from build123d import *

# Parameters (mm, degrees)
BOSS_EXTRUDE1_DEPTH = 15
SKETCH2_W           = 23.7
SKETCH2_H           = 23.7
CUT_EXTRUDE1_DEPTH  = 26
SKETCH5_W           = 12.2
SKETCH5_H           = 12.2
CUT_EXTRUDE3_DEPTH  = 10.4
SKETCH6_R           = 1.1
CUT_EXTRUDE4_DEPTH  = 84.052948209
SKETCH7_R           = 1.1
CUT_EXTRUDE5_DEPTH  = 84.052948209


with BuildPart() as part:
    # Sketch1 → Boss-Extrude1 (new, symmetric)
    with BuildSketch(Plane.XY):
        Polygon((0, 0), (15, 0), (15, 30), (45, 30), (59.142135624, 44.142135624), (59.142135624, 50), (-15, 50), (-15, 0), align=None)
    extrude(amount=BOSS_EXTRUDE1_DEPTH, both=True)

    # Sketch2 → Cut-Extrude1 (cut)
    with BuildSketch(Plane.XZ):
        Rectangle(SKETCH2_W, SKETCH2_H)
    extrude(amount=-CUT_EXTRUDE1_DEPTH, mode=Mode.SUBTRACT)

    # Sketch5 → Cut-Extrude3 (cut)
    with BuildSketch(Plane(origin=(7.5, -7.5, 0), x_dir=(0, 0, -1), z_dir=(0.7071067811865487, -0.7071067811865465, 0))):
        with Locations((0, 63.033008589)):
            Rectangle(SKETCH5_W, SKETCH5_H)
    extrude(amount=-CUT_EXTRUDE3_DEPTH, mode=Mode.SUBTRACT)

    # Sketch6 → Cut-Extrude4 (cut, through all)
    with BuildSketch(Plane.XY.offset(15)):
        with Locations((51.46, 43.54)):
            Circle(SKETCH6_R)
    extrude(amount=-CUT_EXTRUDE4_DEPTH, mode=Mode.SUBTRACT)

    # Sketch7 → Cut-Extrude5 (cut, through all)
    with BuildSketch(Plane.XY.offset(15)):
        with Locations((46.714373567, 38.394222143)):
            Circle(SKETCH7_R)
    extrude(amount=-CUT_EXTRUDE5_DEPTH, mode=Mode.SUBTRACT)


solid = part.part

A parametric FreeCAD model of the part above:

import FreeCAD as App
import Part
import Sketcher
from FreeCAD import Vector
Q = App.Units.Quantity


def add_polygon(sketch, points):
    """Adds a closed chain of lines whose ends are joined by coincident constraints."""
    first, n = sketch.GeometryCount, len(points)
    for a, b in zip(points, points[1:] + points[:1]):
        sketch.addGeometry(Part.LineSegment(App.Vector(*a, 0), App.Vector(*b, 0)), False)
    for i in range(n):
        sketch.addConstraint(Sketcher.Constraint("Coincident", first + i, 2, first + (i + 1) % n, 1))

doc = App.newDocument("Part")
params = doc.addObject("Spreadsheet::Sheet", "Params")
for row, (alias, value) in enumerate([
    ("sketch1_width", "30 mm"),
    ("sketch1_height", "50 mm"),
    ("sketch1_length", "20 mm"),
    ("pad1_length", "30 mm"),
    ("sketch2_width", "23.7 mm"),
    ("pocket1_length", "26 mm"),
    ("sketch3_width", "12.2 mm"),
    ("pocket2_length", "10.4 mm"),
    ("sketch4_diameter", "2.2 mm"),
    ("sketch5_diameter", "2.2 mm"),
], start=1):
    params.set(f"A{row}", alias)
    params.set(f"B{row}", "=" + value)
    params.setAlias(f"B{row}", alias)

body = doc.addObject("PartDesign::Body", "Body")

sketch1 = body.newObject("Sketcher::SketchObject", "Sketch")
sketch1.AttachmentSupport = (doc.getObject("XY_Plane"), [""])
sketch1.MapMode = "FlatFace"
add_polygon(sketch1, [(15, 0), (15, 30), (45, 30), (59.142136, 44.142136), (59.142136, 50), (-15, 50), (-15, 0)])
sketch1.addConstraint(Sketcher.Constraint("Vertical", 0))
sketch1.addConstraint(Sketcher.Constraint("Horizontal", 1))
sketch1.addConstraint(Sketcher.Constraint("Vertical", 3))
sketch1.addConstraint(Sketcher.Constraint("Horizontal", 4))
sketch1.addConstraint(Sketcher.Constraint("Vertical", 5))
sketch1.addConstraint(Sketcher.Constraint("Horizontal", 6))
sketch1.addConstraint(Sketcher.Constraint("Symmetric", 5, 2, 6, 2, -1, 1))
sketch1.addConstraint(Sketcher.Constraint("Equal", 1, 6))
sketch1.addConstraint(Sketcher.Constraint("Equal", 6, 0))
sketch1.addConstraint(Sketcher.Constraint("DistanceX", 1, 1, 1, 2, Q("30 mm")))
sketch1.addConstraint(Sketcher.Constraint("DistanceY", 5, 2, 5, 1, Q("50 mm")))
sketch1.addConstraint(Sketcher.Constraint("Angle", 2, Q("45 deg")))
sketch1.addConstraint(Sketcher.Constraint("Distance", 2, Q("20 mm")))
sketch1.setExpression("Constraints[16]", "Params.sketch1_width")
sketch1.setExpression("Constraints[17]", "Params.sketch1_height")
sketch1.setExpression("Constraints[19]", "Params.sketch1_length")
pad1 = body.newObject("PartDesign::Pad", "Pad")
pad1.Profile = sketch1
pad1.setExpression("Length", "Params.pad1_length")
pad1.Midplane = True

sketch2 = body.newObject("Sketcher::SketchObject", "Sketch001")
sketch2.AttachmentSupport = (doc.getObject("XZ_Plane"), [""])
sketch2.MapMode = "FlatFace"
add_polygon(sketch2, [(-11.85, 11.85), (-11.85, -11.85), (11.85, -11.85), (11.85, 11.85)])
sketch2.addConstraint(Sketcher.Constraint("Vertical", 0))
sketch2.addConstraint(Sketcher.Constraint("Horizontal", 1))
sketch2.addConstraint(Sketcher.Constraint("Vertical", 2))
sketch2.addConstraint(Sketcher.Constraint("Horizontal", 3))
sketch2.addConstraint(Sketcher.Constraint("Symmetric", 0, 2, 2, 2, -1, 1))
sketch2.addConstraint(Sketcher.Constraint("Equal", 3, 0))
sketch2.addConstraint(Sketcher.Constraint("DistanceX", 1, 1, 1, 2, Q("23.7 mm")))
sketch2.setExpression("Constraints[10]", "Params.sketch2_width")
pocket1 = body.newObject("PartDesign::Pocket", "Pocket")
pocket1.Profile = sketch2
pocket1.setExpression("Length", "Params.pocket1_length")

sketch3 = body.newObject("Sketcher::SketchObject", "Sketch002")
sketch3.Placement = App.Placement(Vector(7.5, -7.5, 0), App.Rotation(Vector(0, 0, -1), Vector(0.707106781, 0.707106781, 0), Vector(0.707106781, -0.707106781, 0), "ZXY"))
add_polygon(sketch3, [(-6.1, 69.133009), (-6.1, 56.933009), (6.1, 56.933009), (6.1, 69.133009)])
sketch3.addConstraint(Sketcher.Constraint("Vertical", 0))
sketch3.addConstraint(Sketcher.Constraint("Horizontal", 1))
sketch3.addConstraint(Sketcher.Constraint("Vertical", 2))
sketch3.addConstraint(Sketcher.Constraint("Horizontal", 3))
sketch3.addConstraint(Sketcher.Constraint("Equal", 3, 0))
sketch3.addConstraint(Sketcher.Constraint("DistanceX", 1, 1, 1, 2, Q("12.2 mm")))
sketch3.addConstraint(Sketcher.Constraint("DistanceX", 0, 2, -1, 1, Q("6.1 mm")))
sketch3.addConstraint(Sketcher.Constraint("DistanceY", -1, 1, 0, 2, Q("56.933009 mm")))
sketch3.setExpression("Constraints[9]", "Params.sketch3_width")
pocket2 = body.newObject("PartDesign::Pocket", "Pocket001")
pocket2.Profile = sketch3
pocket2.setExpression("Length", "Params.pocket2_length")

sketch4 = body.newObject("Sketcher::SketchObject", "Sketch003")
sketch4.AttachmentSupport = (doc.getObject("XY_Plane"), [""])
sketch4.MapMode = "FlatFace"
sketch4.AttachmentOffset = App.Placement(Vector(0, 0, 15), App.Rotation())
sketch4.addGeometry(Part.Circle(Vector(51.46, 43.54, 0), Vector(0, 0, 1), 1.1), False)
sketch4.addConstraint(Sketcher.Constraint("Diameter", 0, Q("2.2 mm")))
sketch4.addConstraint(Sketcher.Constraint("DistanceX", -1, 1, 0, 3, Q("51.46 mm")))
sketch4.addConstraint(Sketcher.Constraint("DistanceY", -1, 1, 0, 3, Q("43.54 mm")))
sketch4.setExpression("Constraints[0]", "Params.sketch4_diameter")
pocket3 = body.newObject("PartDesign::Pocket", "Pocket002")
pocket3.Profile = sketch4
pocket3.Type = "ThroughAll"

sketch5 = body.newObject("Sketcher::SketchObject", "Sketch004")
sketch5.AttachmentSupport = (doc.getObject("XY_Plane"), [""])
sketch5.MapMode = "FlatFace"
sketch5.AttachmentOffset = App.Placement(Vector(0, 0, 15), App.Rotation())
sketch5.addGeometry(Part.Circle(Vector(46.714374, 38.394222, 0), Vector(0, 0, 1), 1.1), False)
sketch5.addConstraint(Sketcher.Constraint("Diameter", 0, Q("2.2 mm")))
sketch5.addConstraint(Sketcher.Constraint("DistanceX", -1, 1, 0, 3, Q("46.714374 mm")))
sketch5.addConstraint(Sketcher.Constraint("DistanceY", -1, 1, 0, 3, Q("38.394222 mm")))
sketch5.setExpression("Constraints[0]", "Params.sketch5_diameter")
pocket4 = body.newObject("PartDesign::Pocket", "Pocket003")
pocket4.Profile = sketch5
pocket4.Type = "ThroughAll"

doc.recompute()
